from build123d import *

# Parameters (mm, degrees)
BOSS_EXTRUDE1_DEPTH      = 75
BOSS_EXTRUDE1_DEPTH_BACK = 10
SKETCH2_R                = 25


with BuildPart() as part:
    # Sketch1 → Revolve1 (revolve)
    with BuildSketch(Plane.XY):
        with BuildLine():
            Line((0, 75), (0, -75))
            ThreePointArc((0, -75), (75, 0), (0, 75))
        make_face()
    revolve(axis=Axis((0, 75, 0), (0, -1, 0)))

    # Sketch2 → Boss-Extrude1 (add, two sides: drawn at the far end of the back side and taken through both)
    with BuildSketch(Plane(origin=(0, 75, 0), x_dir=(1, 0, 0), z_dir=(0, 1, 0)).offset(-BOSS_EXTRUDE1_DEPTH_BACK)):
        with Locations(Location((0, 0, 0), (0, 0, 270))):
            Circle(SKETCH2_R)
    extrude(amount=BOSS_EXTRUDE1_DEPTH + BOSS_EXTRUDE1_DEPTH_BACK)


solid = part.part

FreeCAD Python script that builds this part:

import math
import FreeCAD as App
import Part
import Sketcher

doc = App.newDocument("Part")
body = doc.addObject("PartDesign::Body", "Body")

sketch1 = body.newObject("Sketcher::SketchObject", "Sketch")
sketch1.AttachmentSupport = (doc.getObject("XY_Plane"), [""])
sketch1.MapMode = "FlatFace"
sketch1.addGeometry(Part.LineSegment(App.Vector(0, 75, 0), App.Vector(0, -75, 0)), False)
sketch1.addGeometry(Part.ArcOfCircle(Part.Circle(App.Vector(0, 0, 0), App.Vector(0, 0, 1), 75), math.radians(-90), math.radians(90)), False)
sketch1.addConstraint(Sketcher.Constraint("Coincident", 0, 1, 1, 2))
sketch1.addConstraint(Sketcher.Constraint("Coincident", 1, 1, 0, 2))
sketch1.addConstraint(Sketcher.Constraint("Vertical", 0))
sketch1.addConstraint(Sketcher.Constraint("Coincident", 1, 3, -1, 1))
sketch1.addConstraint(Sketcher.Constraint("PointOnObject", 0, 1, -2))
sketch1.addConstraint(Sketcher.Constraint("Radius", 1, 75.0))
revolution = body.newObject("PartDesign::Revolution", "Revolution")
revolution.Profile = sketch1
revolution.ReferenceAxis = (sketch1, ["V_Axis"])
revolution.Angle = 360

sketch2 = body.newObject("Sketcher::SketchObject", "Sketch001")
sketch2.AttachmentSupport = (doc.getObject("XZ_Plane"), [""])
sketch2.MapMode = "FlatFace"
sketch2.AttachmentOffset = App.Placement(App.Vector(0, 0, -75), App.Rotation())
sketch2.addGeometry(Part.Circle(App.Vector(0, 0, 0), App.Vector(0, 0, 1), 25), False)
sketch2.addConstraint(Sketcher.Constraint("Coincident", 0, 3, -1, 1))
sketch2.addConstraint(Sketcher.Constraint("Diameter", 0, 50.0))
pad1 = body.newObject("PartDesign::Pad", "Pad")
pad1.Profile = sketch2
pad1.Type = "TwoLengths"
pad1.Length = 75
pad1.Length2 = 10
pad1.Reversed = True

doc.recompute()
